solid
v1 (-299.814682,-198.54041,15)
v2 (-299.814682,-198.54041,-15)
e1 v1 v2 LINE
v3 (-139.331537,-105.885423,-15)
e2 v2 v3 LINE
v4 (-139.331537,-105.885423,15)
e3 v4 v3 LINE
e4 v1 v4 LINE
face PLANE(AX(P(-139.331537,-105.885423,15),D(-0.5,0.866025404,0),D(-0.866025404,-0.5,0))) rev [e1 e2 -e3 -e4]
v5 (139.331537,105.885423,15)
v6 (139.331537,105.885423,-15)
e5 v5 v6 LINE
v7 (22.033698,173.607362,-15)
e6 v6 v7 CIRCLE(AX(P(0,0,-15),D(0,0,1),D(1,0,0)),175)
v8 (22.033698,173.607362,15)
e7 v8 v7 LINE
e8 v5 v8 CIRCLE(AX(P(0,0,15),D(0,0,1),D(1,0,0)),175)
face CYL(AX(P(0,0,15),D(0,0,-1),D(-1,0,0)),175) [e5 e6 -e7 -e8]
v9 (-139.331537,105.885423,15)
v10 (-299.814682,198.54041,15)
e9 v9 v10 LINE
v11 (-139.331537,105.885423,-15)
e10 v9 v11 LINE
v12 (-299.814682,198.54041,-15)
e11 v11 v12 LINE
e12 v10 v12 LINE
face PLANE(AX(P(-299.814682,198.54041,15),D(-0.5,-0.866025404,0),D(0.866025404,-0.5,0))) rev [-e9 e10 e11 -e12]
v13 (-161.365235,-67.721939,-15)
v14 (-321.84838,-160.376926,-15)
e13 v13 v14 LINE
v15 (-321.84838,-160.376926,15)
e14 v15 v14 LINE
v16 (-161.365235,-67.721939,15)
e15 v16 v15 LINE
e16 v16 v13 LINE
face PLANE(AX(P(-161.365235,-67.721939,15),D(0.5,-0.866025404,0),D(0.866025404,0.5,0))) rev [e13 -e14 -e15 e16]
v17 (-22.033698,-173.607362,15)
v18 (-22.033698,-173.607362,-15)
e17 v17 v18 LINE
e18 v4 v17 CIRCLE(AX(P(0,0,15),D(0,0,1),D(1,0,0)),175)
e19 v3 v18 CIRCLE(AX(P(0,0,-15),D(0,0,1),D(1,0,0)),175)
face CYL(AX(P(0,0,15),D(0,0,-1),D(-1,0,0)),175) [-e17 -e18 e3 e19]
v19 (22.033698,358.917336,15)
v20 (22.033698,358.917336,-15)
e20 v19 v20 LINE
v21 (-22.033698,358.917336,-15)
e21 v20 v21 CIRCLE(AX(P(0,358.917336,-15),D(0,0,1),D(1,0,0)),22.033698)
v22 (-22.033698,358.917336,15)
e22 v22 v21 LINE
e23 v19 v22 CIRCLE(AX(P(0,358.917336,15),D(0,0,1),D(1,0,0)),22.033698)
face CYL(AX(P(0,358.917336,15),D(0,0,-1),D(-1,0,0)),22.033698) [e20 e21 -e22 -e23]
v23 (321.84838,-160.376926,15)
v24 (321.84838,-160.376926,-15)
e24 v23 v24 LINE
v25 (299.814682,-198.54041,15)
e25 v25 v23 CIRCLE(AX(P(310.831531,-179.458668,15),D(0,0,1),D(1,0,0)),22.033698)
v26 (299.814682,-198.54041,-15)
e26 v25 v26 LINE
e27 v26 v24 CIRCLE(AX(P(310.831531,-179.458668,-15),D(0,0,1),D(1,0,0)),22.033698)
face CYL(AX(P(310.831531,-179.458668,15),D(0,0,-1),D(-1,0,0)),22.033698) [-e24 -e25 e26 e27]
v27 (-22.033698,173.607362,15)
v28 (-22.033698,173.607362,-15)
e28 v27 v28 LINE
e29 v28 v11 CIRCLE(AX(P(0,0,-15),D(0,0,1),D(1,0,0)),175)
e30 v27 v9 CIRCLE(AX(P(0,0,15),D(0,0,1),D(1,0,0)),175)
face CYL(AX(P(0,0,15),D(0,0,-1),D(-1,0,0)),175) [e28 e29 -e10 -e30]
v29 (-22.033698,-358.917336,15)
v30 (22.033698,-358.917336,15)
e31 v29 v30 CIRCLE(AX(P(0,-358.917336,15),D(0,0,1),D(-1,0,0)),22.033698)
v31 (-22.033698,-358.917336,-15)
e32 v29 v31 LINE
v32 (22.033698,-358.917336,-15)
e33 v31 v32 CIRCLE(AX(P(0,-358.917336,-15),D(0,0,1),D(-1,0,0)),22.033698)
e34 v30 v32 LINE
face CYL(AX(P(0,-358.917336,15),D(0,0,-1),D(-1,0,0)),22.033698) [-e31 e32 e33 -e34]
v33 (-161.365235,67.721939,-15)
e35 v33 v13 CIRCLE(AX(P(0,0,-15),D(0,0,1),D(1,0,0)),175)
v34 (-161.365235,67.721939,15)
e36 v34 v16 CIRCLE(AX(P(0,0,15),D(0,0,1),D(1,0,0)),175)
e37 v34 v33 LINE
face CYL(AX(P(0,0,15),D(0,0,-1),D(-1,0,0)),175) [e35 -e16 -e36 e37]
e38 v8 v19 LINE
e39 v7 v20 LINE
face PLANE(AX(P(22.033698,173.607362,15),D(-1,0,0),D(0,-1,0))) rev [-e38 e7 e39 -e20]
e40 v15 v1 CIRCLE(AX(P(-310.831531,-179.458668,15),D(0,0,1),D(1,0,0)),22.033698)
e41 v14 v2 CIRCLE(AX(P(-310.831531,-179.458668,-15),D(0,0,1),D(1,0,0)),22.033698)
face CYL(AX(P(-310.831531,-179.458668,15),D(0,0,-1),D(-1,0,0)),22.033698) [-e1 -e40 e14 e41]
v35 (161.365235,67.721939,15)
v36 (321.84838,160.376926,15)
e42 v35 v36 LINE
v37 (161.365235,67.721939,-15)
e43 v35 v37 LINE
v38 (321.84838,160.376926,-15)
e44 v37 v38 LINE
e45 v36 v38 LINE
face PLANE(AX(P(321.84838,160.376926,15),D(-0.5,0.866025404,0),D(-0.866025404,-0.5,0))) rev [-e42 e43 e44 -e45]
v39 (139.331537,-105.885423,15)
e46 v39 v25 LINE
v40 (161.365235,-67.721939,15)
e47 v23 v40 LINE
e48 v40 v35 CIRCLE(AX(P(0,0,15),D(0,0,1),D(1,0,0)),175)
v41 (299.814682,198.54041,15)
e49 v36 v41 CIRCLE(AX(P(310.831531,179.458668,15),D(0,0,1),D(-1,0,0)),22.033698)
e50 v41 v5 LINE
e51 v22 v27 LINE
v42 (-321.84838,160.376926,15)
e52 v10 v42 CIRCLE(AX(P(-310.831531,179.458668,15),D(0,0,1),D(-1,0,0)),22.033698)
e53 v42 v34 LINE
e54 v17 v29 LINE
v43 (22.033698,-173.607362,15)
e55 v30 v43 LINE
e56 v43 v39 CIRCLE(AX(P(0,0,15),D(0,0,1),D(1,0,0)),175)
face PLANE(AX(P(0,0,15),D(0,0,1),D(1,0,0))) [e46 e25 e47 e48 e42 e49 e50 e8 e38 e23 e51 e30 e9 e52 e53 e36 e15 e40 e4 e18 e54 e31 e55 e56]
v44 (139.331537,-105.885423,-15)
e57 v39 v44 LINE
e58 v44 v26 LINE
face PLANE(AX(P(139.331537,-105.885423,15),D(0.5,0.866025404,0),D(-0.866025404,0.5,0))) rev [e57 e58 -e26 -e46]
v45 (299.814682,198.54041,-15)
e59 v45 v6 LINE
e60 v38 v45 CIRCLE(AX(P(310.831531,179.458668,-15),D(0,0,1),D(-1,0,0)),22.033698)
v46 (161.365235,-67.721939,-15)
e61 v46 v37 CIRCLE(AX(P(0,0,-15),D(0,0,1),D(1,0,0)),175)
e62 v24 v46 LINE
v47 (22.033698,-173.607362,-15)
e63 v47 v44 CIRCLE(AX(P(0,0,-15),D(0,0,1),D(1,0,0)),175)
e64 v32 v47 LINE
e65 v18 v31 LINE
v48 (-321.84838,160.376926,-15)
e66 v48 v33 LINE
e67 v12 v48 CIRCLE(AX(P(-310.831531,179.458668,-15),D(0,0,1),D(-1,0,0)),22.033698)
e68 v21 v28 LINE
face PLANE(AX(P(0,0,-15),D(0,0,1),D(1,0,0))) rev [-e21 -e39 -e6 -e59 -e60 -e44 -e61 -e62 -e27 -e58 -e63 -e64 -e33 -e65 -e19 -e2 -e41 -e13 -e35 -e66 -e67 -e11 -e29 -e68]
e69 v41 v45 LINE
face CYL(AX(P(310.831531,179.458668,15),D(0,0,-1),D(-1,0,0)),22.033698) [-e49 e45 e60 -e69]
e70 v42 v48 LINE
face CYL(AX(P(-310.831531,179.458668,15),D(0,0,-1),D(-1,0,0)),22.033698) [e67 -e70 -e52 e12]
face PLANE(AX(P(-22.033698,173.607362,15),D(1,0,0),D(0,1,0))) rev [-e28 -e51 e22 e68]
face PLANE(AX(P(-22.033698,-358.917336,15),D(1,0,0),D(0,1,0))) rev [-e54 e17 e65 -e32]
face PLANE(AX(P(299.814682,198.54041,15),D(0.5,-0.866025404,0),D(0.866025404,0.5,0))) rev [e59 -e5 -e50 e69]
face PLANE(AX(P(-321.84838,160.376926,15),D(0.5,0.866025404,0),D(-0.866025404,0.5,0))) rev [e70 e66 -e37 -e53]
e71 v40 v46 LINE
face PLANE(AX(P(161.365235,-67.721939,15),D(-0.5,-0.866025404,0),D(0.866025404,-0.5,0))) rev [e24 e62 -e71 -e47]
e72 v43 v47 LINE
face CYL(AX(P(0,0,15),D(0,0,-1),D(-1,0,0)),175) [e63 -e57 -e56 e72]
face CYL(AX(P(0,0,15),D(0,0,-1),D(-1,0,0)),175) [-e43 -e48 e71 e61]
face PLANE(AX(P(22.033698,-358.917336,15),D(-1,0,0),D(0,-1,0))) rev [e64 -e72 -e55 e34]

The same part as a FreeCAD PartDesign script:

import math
import FreeCAD as App
import Part
import Sketcher
Q = App.Units.Quantity

doc = App.newDocument("Part")
body = doc.addObject("PartDesign::Body", "Body")

# Sketch on XY plane
sketch1 = doc.addObject("Sketcher::SketchObject", "Sketch")
body.addObject(sketch1)
sketch1.AttachmentSupport = (doc.XY_Plane, [""])
sketch1.MapMode = "FlatFace"
sketch1.addGeometry([
    Part.LineSegment(App.Vector(-139, 106, 0), App.Vector(-300, 199, 0)),  # 0
    Part.ArcOfCircle(Part.Circle(App.Vector(-311, 179, 0), App.Vector(0, 0, 1), 22), math.radians(60), math.radians(240)),  # 1
    Part.LineSegment(App.Vector(-322, 160, 0), App.Vector(-161, 68, 0)),  # 2
    Part.ArcOfCircle(Part.Circle(App.Vector(0, 0, 0), App.Vector(0, 0, 1), 175), math.radians(157), math.radians(203)),  # 3
    Part.LineSegment(App.Vector(-161, -68, 0), App.Vector(-322, -160, 0)),  # 4
    Part.ArcOfCircle(Part.Circle(App.Vector(-311, -179, 0), App.Vector(0, 0, 1), 22), math.radians(120), math.radians(300)),  # 5
    Part.LineSegment(App.Vector(-300, -199, 0), App.Vector(-139, -106, 0)),  # 6
    Part.ArcOfCircle(Part.Circle(App.Vector(0, 0, 0), App.Vector(0, 0, 1), 175), math.radians(-143), math.radians(-97)),  # 7
    Part.LineSegment(App.Vector(-22, -174, 0), App.Vector(-22, -359, 0)),  # 8
    Part.ArcOfCircle(Part.Circle(App.Vector(0, -359, 0), App.Vector(0, 0, 1), 22), math.radians(180), math.radians(360)),  # 9
    Part.LineSegment(App.Vector(22, -359, 0), App.Vector(22, -174, 0)),  # 10
    Part.ArcOfCircle(Part.Circle(App.Vector(0, 0, 0), App.Vector(0, 0, 1), 175), math.radians(-83), math.radians(-37)),  # 11
    Part.LineSegment(App.Vector(139, -106, 0), App.Vector(300, -199, 0)),  # 12
    Part.ArcOfCircle(Part.Circle(App.Vector(311, -179, 0), App.Vector(0, 0, 1), 22), math.radians(-120), math.radians(60)),  # 13
    Part.LineSegment(App.Vector(322, -160, 0), App.Vector(161, -68, 0)),  # 14
    Part.ArcOfCircle(Part.Circle(App.Vector(0, 0, 0), App.Vector(0, 0, 1), 175), math.radians(-23), math.radians(23)),  # 15
    Part.LineSegment(App.Vector(161, 68, 0), App.Vector(322, 160, 0)),  # 16
    Part.ArcOfCircle(Part.Circle(App.Vector(311, 179, 0), App.Vector(0, 0, 1), 22), math.radians(-60), math.radians(120)),  # 17
    Part.LineSegment(App.Vector(300, 199, 0), App.Vector(139, 106, 0)),  # 18
    Part.ArcOfCircle(Part.Circle(App.Vector(0, 0, 0), App.Vector(0, 0, 1), 175), math.radians(37), math.radians(83)),  # 19
    Part.LineSegment(App.Vector(22, 174, 0), App.Vector(22, 359, 0)),  # 20
    Part.ArcOfCircle(Part.Circle(App.Vector(0, 359, 0), App.Vector(0, 0, 1), 22), math.radians(0), math.radians(180)),  # 21
    Part.LineSegment(App.Vector(-22, 359, 0), App.Vector(-22, 174, 0)),  # 22
    Part.ArcOfCircle(Part.Circle(App.Vector(0, 0, 0), App.Vector(0, 0, 1), 175), math.radians(97), math.radians(143)),  # 23
], False)
sketch1.addConstraint([
    Sketcher.Constraint("Tangent", 0, 2, 1, 1),
    Sketcher.Constraint("Tangent", 1, 2, 2, 1),
    Sketcher.Constraint("Coincident", 2, 2, 3, 1),
    Sketcher.Constraint("Coincident", 3, 2, 4, 1),
    Sketcher.Constraint("Tangent", 4, 2, 5, 1),
    Sketcher.Constraint("Tangent", 5, 2, 6, 1),
    Sketcher.Constraint("Coincident", 6, 2, 7, 1),
    Sketcher.Constraint("Coincident", 7, 2, 8, 1),
    Sketcher.Constraint("Tangent", 8, 2, 9, 1),
    Sketcher.Constraint("Tangent", 9, 2, 10, 1),
    Sketcher.Constraint("Coincident", 10, 2, 11, 1),
    Sketcher.Constraint("Coincident", 11, 2, 12, 1),
    Sketcher.Constraint("Tangent", 12, 2, 13, 1),
    Sketcher.Constraint("Tangent", 13, 2, 14, 1),
    Sketcher.Constraint("Coincident", 14, 2, 15, 1),
    Sketcher.Constraint("Coincident", 15, 2, 16, 1),
    Sketcher.Constraint("Tangent", 16, 2, 17, 1),
    Sketcher.Constraint("Tangent", 17, 2, 18, 1),
    Sketcher.Constraint("Coincident", 18, 2, 19, 1),
    Sketcher.Constraint("Coincident", 19, 2, 20, 1),
    Sketcher.Constraint("Tangent", 20, 2, 21, 1),
    Sketcher.Constraint("Tangent", 21, 2, 22, 1),
    Sketcher.Constraint("Coincident", 22, 2, 23, 1),
    Sketcher.Constraint("Coincident", 23, 2, 0, 1),
    Sketcher.Constraint("Vertical", 8),
    Sketcher.Constraint("Vertical", 10),
    Sketcher.Constraint("Vertical", 20),
    Sketcher.Constraint("Vertical", 22),
    Sketcher.Constraint("Coincident", 3, 3, -1, 1),
    Sketcher.Constraint("Coincident", 7, 3, -1, 1),
    Sketcher.Constraint("Coincident", 11, 3, -1, 1),
    Sketcher.Constraint("Coincident", 15, 3, -1, 1),
    Sketcher.Constraint("Coincident", 19, 3, -1, 1),
    Sketcher.Constraint("Coincident", 23, 3, -1, 1),
    Sketcher.Constraint("Equal", 1, 5),
    Sketcher.Constraint("Equal", 3, 7),
    Sketcher.Constraint("Equal", 5, 9),
    Sketcher.Constraint("Equal", 7, 11),
    Sketcher.Constraint("Equal", 9, 13),
    Sketcher.Constraint("Equal", 11, 15),
    Sketcher.Constraint("Equal", 13, 17),
    Sketcher.Constraint("Equal", 15, 19),
    Sketcher.Constraint("Equal", 17, 21),
    Sketcher.Constraint("Equal", 19, 23),
    Sketcher.Constraint("Symmetric", 1, 3, 13, 3, -1, 1),
    Sketcher.Constraint("Symmetric", 5, 3, 17, 3, -1, 1),
    Sketcher.Constraint("Symmetric", 9, 3, 21, 3, -1, 1),
    Sketcher.Constraint("Symmetric", 5, 3, 13, 3, -2),
    Sketcher.Constraint("PointOnObject", 9, 3, -2),
    Sketcher.Constraint("Parallel", 0, 2),
    Sketcher.Constraint("Parallel", 4, 6),
    Sketcher.Constraint("Parallel", 2, 12),
    Sketcher.Constraint("Parallel", 12, 14),
    Sketcher.Constraint("Parallel", 6, 16),
    Sketcher.Constraint("Parallel", 16, 18),
    Sketcher.Constraint("Horizontal", 6, 2, 11, 2),
    Sketcher.Constraint("Equal", 0, 2),
    Sketcher.Constraint("Radius", 3, 175.0),
    Sketcher.Constraint("Angle", 0, Q("150 deg")),
    Sketcher.Constraint("Radius", 1, 22.033698),
    Sketcher.Constraint("DistanceY", 8, 2, 8, 1, 185.309974),
    Sketcher.Constraint("DistanceX", 1, 3, -1, 1, 310.831531),
])
pad1 = doc.addObject("PartDesign::Pad", "Pad")
body.addObject(pad1)
pad1.Profile = sketch1
pad1.Length = 30
pad1.Midplane = True

doc.recompute()
